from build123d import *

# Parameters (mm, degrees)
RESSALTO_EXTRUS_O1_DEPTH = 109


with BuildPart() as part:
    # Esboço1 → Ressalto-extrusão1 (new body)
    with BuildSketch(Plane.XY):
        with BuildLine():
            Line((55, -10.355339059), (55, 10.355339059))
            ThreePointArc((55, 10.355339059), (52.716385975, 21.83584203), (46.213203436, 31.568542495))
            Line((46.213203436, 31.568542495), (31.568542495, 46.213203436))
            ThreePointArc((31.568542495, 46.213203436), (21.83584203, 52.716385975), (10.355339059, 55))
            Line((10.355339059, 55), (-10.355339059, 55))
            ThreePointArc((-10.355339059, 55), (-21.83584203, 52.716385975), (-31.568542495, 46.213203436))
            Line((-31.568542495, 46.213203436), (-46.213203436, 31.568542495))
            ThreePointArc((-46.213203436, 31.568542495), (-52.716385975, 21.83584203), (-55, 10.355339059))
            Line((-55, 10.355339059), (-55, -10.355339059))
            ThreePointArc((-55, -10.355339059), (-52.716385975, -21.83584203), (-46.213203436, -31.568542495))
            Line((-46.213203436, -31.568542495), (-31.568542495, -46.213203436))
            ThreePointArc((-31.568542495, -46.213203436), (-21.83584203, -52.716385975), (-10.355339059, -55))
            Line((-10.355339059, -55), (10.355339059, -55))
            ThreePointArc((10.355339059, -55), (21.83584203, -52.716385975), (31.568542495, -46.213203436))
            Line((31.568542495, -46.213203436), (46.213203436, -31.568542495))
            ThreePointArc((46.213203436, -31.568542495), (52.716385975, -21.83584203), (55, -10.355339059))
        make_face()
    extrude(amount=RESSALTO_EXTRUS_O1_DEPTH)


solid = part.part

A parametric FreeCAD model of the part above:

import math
import FreeCAD as App
import Part
import Sketcher

doc = App.newDocument("Part")
body = doc.addObject("PartDesign::Body", "Body")

# Sketch on XY plane
sketch1 = doc.addObject("Sketcher::SketchObject", "Sketch")
body.addObject(sketch1)
sketch1.AttachmentSupport = (doc.XY_Plane, [""])
sketch1.MapMode = "FlatFace"
sketch1.addGeometry([
    Part.LineSegment(App.Vector(55, -10.355339, 0), App.Vector(55, 10.355339, 0)),  # 0
    Part.ArcOfCircle(Part.Circle(App.Vector(25, 10.355339, 0), App.Vector(0, 0, 1), 30), math.radians(0), math.radians(45)),  # 1
    Part.LineSegment(App.Vector(46.213203, 31.568542, 0), App.Vector(31.568542, 46.213203, 0)),  # 2
    Part.ArcOfCircle(Part.Circle(App.Vector(10.355339, 25, 0), App.Vector(0, 0, 1), 30), math.radians(45), math.radians(90)),  # 3
    Part.LineSegment(App.Vector(10.355339, 55, 0), App.Vector(-10.355339, 55, 0)),  # 4
    Part.ArcOfCircle(Part.Circle(App.Vector(-10.355339, 25, 0), App.Vector(0, 0, 1), 30), math.radians(90), math.radians(135)),  # 5
    Part.LineSegment(App.Vector(-31.568542, 46.213203, 0), App.Vector(-46.213203, 31.568542, 0)),  # 6
    Part.ArcOfCircle(Part.Circle(App.Vector(-25, 10.355339, 0), App.Vector(0, 0, 1), 30), math.radians(135), math.radians(180)),  # 7
    Part.LineSegment(App.Vector(-55, 10.355339, 0), App.Vector(-55, -10.355339, 0)),  # 8
    Part.ArcOfCircle(Part.Circle(App.Vector(-25, -10.355339, 0), App.Vector(0, 0, 1), 30), math.radians(-180), math.radians(-135)),  # 9
    Part.LineSegment(App.Vector(-46.213203, -31.568542, 0), App.Vector(-31.568542, -46.213203, 0)),  # 10
    Part.ArcOfCircle(Part.Circle(App.Vector(-10.355339, -25, 0), App.Vector(0, 0, 1), 30), math.radians(-135), math.radians(-90)),  # 11
    Part.LineSegment(App.Vector(-10.355339, -55, 0), App.Vector(10.355339, -55, 0)),  # 12
    Part.ArcOfCircle(Part.Circle(App.Vector(10.355339, -25, 0), App.Vector(0, 0, 1), 30), math.radians(-90), math.radians(-45)),  # 13
    Part.LineSegment(App.Vector(31.568542, -46.213203, 0), App.Vector(46.213203, -31.568542, 0)),  # 14
    Part.ArcOfCircle(Part.Circle(App.Vector(25, -10.355339, 0), App.Vector(0, 0, 1), 30), math.radians(-45), math.radians(0)),  # 15
], False)
sketch1.addConstraint([
    Sketcher.Constraint("Tangent", 0, 2, 1, 1),
    Sketcher.Constraint("Tangent", 1, 2, 2, 1),
    Sketcher.Constraint("Tangent", 2, 2, 3, 1),
    Sketcher.Constraint("Tangent", 3, 2, 4, 1),
    Sketcher.Constraint("Tangent", 4, 2, 5, 1),
    Sketcher.Constraint("Tangent", 5, 2, 6, 1),
    Sketcher.Constraint("Tangent", 6, 2, 7, 1),
    Sketcher.Constraint("Tangent", 7, 2, 8, 1),
    Sketcher.Constraint("Tangent", 8, 2, 9, 1),
    Sketcher.Constraint("Tangent", 9, 2, 10, 1),
    Sketcher.Constraint("Tangent", 10, 2, 11, 1),
    Sketcher.Constraint("Tangent", 11, 2, 12, 1),
    Sketcher.Constraint("Tangent", 12, 2, 13, 1),
    Sketcher.Constraint("Tangent", 13, 2, 14, 1),
    Sketcher.Constraint("Tangent", 14, 2, 15, 1),
    Sketcher.Constraint("Tangent", 15, 2, 0, 1),
    Sketcher.Constraint("Vertical", 0),
    Sketcher.Constraint("Horizontal", 4),
    Sketcher.Constraint("Vertical", 8),
    Sketcher.Constraint("Horizontal", 12),
    Sketcher.Constraint("Equal", 1, 3),
    Sketcher.Constraint("Equal", 3, 5),
    Sketcher.Constraint("Equal", 5, 7),
    Sketcher.Constraint("Equal", 7, 9),
    Sketcher.Constraint("Equal", 9, 11),
    Sketcher.Constraint("Equal", 11, 13),
    Sketcher.Constraint("Equal", 13, 15),
    Sketcher.Constraint("Symmetric", 1, 3, 9, 3, -1, 1),
    Sketcher.Constraint("Symmetric", 3, 3, 11, 3, -1, 1),
    Sketcher.Constraint("Symmetric", 5, 2, 13, 2, -1, 1),
    Sketcher.Constraint("Symmetric", 2, 2, 5, 2, -2),
    Sketcher.Constraint("Perpendicular", 2, 6),
    Sketcher.Constraint("Equal", 12, 0),
    Sketcher.Constraint("Radius", 1, 30.0),
    Sketcher.Constraint("DistanceX", -1, 1, 1, 3, 25.0),
    Sketcher.Constraint("DistanceX", 4, 2, 4, 1, 20.710678),
])
pad1 = doc.addObject("PartDesign::Pad", "Pad")
body.addObject(pad1)
pad1.Profile = sketch1
pad1.Length = 109

doc.recompute()
